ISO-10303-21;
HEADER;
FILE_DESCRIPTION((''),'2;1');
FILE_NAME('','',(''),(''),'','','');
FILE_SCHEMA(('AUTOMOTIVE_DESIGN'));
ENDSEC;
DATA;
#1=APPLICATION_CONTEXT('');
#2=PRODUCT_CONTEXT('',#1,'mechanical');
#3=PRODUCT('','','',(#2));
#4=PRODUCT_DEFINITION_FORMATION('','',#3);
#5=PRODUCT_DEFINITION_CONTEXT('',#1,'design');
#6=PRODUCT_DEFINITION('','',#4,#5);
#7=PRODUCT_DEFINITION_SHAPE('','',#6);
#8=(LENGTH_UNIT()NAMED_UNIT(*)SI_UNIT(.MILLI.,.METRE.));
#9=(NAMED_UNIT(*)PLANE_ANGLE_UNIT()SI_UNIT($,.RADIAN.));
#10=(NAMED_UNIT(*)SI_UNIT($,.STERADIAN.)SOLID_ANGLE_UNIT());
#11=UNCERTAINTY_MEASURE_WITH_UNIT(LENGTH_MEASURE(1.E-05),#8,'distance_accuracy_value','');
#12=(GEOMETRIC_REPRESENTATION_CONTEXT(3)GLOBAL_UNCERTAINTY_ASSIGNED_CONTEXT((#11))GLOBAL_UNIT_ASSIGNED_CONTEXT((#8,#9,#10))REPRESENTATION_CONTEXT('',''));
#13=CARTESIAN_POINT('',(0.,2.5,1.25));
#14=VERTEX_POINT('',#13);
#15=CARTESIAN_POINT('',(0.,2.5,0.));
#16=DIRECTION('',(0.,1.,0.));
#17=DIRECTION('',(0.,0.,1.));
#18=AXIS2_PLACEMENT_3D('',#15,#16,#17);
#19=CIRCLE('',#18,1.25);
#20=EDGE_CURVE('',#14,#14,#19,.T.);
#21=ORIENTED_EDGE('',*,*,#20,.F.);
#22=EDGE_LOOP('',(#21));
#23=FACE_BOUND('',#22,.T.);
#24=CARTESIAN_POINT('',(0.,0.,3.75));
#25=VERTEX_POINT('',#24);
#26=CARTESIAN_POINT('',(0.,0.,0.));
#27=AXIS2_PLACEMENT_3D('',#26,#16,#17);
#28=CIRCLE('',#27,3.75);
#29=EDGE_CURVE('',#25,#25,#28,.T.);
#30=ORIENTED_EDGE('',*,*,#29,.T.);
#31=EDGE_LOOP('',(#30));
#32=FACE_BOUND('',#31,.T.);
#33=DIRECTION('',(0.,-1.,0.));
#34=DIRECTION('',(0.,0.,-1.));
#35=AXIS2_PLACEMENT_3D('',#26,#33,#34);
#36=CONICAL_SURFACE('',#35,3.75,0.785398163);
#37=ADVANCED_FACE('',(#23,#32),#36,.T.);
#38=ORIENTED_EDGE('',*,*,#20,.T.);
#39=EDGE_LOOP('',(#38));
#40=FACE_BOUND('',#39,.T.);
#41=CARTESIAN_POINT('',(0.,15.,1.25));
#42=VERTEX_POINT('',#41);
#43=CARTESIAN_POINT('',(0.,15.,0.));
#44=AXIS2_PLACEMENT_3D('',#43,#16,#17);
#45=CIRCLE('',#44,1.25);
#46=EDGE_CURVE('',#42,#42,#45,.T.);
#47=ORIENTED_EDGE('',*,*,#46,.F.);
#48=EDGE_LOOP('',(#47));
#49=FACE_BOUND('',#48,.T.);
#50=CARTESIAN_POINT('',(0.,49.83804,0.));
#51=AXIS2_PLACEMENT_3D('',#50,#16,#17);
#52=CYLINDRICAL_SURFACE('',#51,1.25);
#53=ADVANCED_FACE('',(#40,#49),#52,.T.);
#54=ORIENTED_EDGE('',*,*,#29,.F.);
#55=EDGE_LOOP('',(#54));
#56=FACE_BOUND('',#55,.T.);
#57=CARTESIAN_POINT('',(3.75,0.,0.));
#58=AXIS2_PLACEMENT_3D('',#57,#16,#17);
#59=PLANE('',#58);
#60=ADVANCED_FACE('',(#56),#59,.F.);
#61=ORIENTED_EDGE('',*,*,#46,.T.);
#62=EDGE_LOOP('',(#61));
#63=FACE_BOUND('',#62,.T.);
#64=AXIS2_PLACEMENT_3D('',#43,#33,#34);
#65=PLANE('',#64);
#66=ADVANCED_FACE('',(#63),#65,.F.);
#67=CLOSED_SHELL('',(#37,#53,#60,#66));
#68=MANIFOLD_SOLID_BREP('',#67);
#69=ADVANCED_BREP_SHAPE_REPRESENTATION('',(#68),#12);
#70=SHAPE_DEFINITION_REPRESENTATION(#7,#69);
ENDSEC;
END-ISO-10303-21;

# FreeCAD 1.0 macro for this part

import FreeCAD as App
import Part
import Sketcher

V = App.Vector
Q = App.Units.Quantity


def add_polygon(sketch, points):
    """Adds a closed chain of lines whose ends are joined by coincident constraints."""
    first, n = sketch.GeometryCount, len(points)
    for a, b in zip(points, points[1:] + points[:1]):
        sketch.addGeometry(Part.LineSegment(App.Vector(*a, 0), App.Vector(*b, 0)), False)
    for i in range(n):
        sketch.addConstraint(Sketcher.Constraint("Coincident", first + i, 2, first + (i + 1) % n, 1))

doc = App.newDocument("Part")
body = doc.addObject("PartDesign::Body", "Body")

# Sketch on XY plane
sketch1 = body.newObject("Sketcher::SketchObject", "Sketch")
sketch1.AttachmentSupport = (doc.getObject("XY_Plane"), [""])
sketch1.MapMode = "FlatFace"
add_polygon(sketch1, [(1.2, 15), (0, 15), (0, 0), (3.8, 0), (1.2, 2.5)])  # lines 0-4
sketch1.addConstraint(Sketcher.Constraint("Horizontal", 0))
sketch1.addConstraint(Sketcher.Constraint("Vertical", 1))
sketch1.addConstraint(Sketcher.Constraint("Horizontal", 2))
sketch1.addConstraint(Sketcher.Constraint("Vertical", 4))
sketch1.addConstraint(Sketcher.Constraint("Coincident", 1, 2, -1, 1))
sketch1.addConstraint(Sketcher.Constraint("DistanceY", 1, 2, 1, 1, 15.0))
sketch1.addConstraint(Sketcher.Constraint("Angle", 3, Q("135 deg")))
sketch1.addConstraint(Sketcher.Constraint("DistanceY", 4, 1, 4, 2, 12.5))
sketch1.addConstraint(Sketcher.Constraint("DistanceX", 0, 2, 0, 1, 1.25))
revolution = body.newObject("PartDesign::Revolution", "Revolution")
revolution.Profile = sketch1
revolution.ReferenceAxis = (sketch1, ["V_Axis"])
revolution.Angle = 360

doc.recompute()
